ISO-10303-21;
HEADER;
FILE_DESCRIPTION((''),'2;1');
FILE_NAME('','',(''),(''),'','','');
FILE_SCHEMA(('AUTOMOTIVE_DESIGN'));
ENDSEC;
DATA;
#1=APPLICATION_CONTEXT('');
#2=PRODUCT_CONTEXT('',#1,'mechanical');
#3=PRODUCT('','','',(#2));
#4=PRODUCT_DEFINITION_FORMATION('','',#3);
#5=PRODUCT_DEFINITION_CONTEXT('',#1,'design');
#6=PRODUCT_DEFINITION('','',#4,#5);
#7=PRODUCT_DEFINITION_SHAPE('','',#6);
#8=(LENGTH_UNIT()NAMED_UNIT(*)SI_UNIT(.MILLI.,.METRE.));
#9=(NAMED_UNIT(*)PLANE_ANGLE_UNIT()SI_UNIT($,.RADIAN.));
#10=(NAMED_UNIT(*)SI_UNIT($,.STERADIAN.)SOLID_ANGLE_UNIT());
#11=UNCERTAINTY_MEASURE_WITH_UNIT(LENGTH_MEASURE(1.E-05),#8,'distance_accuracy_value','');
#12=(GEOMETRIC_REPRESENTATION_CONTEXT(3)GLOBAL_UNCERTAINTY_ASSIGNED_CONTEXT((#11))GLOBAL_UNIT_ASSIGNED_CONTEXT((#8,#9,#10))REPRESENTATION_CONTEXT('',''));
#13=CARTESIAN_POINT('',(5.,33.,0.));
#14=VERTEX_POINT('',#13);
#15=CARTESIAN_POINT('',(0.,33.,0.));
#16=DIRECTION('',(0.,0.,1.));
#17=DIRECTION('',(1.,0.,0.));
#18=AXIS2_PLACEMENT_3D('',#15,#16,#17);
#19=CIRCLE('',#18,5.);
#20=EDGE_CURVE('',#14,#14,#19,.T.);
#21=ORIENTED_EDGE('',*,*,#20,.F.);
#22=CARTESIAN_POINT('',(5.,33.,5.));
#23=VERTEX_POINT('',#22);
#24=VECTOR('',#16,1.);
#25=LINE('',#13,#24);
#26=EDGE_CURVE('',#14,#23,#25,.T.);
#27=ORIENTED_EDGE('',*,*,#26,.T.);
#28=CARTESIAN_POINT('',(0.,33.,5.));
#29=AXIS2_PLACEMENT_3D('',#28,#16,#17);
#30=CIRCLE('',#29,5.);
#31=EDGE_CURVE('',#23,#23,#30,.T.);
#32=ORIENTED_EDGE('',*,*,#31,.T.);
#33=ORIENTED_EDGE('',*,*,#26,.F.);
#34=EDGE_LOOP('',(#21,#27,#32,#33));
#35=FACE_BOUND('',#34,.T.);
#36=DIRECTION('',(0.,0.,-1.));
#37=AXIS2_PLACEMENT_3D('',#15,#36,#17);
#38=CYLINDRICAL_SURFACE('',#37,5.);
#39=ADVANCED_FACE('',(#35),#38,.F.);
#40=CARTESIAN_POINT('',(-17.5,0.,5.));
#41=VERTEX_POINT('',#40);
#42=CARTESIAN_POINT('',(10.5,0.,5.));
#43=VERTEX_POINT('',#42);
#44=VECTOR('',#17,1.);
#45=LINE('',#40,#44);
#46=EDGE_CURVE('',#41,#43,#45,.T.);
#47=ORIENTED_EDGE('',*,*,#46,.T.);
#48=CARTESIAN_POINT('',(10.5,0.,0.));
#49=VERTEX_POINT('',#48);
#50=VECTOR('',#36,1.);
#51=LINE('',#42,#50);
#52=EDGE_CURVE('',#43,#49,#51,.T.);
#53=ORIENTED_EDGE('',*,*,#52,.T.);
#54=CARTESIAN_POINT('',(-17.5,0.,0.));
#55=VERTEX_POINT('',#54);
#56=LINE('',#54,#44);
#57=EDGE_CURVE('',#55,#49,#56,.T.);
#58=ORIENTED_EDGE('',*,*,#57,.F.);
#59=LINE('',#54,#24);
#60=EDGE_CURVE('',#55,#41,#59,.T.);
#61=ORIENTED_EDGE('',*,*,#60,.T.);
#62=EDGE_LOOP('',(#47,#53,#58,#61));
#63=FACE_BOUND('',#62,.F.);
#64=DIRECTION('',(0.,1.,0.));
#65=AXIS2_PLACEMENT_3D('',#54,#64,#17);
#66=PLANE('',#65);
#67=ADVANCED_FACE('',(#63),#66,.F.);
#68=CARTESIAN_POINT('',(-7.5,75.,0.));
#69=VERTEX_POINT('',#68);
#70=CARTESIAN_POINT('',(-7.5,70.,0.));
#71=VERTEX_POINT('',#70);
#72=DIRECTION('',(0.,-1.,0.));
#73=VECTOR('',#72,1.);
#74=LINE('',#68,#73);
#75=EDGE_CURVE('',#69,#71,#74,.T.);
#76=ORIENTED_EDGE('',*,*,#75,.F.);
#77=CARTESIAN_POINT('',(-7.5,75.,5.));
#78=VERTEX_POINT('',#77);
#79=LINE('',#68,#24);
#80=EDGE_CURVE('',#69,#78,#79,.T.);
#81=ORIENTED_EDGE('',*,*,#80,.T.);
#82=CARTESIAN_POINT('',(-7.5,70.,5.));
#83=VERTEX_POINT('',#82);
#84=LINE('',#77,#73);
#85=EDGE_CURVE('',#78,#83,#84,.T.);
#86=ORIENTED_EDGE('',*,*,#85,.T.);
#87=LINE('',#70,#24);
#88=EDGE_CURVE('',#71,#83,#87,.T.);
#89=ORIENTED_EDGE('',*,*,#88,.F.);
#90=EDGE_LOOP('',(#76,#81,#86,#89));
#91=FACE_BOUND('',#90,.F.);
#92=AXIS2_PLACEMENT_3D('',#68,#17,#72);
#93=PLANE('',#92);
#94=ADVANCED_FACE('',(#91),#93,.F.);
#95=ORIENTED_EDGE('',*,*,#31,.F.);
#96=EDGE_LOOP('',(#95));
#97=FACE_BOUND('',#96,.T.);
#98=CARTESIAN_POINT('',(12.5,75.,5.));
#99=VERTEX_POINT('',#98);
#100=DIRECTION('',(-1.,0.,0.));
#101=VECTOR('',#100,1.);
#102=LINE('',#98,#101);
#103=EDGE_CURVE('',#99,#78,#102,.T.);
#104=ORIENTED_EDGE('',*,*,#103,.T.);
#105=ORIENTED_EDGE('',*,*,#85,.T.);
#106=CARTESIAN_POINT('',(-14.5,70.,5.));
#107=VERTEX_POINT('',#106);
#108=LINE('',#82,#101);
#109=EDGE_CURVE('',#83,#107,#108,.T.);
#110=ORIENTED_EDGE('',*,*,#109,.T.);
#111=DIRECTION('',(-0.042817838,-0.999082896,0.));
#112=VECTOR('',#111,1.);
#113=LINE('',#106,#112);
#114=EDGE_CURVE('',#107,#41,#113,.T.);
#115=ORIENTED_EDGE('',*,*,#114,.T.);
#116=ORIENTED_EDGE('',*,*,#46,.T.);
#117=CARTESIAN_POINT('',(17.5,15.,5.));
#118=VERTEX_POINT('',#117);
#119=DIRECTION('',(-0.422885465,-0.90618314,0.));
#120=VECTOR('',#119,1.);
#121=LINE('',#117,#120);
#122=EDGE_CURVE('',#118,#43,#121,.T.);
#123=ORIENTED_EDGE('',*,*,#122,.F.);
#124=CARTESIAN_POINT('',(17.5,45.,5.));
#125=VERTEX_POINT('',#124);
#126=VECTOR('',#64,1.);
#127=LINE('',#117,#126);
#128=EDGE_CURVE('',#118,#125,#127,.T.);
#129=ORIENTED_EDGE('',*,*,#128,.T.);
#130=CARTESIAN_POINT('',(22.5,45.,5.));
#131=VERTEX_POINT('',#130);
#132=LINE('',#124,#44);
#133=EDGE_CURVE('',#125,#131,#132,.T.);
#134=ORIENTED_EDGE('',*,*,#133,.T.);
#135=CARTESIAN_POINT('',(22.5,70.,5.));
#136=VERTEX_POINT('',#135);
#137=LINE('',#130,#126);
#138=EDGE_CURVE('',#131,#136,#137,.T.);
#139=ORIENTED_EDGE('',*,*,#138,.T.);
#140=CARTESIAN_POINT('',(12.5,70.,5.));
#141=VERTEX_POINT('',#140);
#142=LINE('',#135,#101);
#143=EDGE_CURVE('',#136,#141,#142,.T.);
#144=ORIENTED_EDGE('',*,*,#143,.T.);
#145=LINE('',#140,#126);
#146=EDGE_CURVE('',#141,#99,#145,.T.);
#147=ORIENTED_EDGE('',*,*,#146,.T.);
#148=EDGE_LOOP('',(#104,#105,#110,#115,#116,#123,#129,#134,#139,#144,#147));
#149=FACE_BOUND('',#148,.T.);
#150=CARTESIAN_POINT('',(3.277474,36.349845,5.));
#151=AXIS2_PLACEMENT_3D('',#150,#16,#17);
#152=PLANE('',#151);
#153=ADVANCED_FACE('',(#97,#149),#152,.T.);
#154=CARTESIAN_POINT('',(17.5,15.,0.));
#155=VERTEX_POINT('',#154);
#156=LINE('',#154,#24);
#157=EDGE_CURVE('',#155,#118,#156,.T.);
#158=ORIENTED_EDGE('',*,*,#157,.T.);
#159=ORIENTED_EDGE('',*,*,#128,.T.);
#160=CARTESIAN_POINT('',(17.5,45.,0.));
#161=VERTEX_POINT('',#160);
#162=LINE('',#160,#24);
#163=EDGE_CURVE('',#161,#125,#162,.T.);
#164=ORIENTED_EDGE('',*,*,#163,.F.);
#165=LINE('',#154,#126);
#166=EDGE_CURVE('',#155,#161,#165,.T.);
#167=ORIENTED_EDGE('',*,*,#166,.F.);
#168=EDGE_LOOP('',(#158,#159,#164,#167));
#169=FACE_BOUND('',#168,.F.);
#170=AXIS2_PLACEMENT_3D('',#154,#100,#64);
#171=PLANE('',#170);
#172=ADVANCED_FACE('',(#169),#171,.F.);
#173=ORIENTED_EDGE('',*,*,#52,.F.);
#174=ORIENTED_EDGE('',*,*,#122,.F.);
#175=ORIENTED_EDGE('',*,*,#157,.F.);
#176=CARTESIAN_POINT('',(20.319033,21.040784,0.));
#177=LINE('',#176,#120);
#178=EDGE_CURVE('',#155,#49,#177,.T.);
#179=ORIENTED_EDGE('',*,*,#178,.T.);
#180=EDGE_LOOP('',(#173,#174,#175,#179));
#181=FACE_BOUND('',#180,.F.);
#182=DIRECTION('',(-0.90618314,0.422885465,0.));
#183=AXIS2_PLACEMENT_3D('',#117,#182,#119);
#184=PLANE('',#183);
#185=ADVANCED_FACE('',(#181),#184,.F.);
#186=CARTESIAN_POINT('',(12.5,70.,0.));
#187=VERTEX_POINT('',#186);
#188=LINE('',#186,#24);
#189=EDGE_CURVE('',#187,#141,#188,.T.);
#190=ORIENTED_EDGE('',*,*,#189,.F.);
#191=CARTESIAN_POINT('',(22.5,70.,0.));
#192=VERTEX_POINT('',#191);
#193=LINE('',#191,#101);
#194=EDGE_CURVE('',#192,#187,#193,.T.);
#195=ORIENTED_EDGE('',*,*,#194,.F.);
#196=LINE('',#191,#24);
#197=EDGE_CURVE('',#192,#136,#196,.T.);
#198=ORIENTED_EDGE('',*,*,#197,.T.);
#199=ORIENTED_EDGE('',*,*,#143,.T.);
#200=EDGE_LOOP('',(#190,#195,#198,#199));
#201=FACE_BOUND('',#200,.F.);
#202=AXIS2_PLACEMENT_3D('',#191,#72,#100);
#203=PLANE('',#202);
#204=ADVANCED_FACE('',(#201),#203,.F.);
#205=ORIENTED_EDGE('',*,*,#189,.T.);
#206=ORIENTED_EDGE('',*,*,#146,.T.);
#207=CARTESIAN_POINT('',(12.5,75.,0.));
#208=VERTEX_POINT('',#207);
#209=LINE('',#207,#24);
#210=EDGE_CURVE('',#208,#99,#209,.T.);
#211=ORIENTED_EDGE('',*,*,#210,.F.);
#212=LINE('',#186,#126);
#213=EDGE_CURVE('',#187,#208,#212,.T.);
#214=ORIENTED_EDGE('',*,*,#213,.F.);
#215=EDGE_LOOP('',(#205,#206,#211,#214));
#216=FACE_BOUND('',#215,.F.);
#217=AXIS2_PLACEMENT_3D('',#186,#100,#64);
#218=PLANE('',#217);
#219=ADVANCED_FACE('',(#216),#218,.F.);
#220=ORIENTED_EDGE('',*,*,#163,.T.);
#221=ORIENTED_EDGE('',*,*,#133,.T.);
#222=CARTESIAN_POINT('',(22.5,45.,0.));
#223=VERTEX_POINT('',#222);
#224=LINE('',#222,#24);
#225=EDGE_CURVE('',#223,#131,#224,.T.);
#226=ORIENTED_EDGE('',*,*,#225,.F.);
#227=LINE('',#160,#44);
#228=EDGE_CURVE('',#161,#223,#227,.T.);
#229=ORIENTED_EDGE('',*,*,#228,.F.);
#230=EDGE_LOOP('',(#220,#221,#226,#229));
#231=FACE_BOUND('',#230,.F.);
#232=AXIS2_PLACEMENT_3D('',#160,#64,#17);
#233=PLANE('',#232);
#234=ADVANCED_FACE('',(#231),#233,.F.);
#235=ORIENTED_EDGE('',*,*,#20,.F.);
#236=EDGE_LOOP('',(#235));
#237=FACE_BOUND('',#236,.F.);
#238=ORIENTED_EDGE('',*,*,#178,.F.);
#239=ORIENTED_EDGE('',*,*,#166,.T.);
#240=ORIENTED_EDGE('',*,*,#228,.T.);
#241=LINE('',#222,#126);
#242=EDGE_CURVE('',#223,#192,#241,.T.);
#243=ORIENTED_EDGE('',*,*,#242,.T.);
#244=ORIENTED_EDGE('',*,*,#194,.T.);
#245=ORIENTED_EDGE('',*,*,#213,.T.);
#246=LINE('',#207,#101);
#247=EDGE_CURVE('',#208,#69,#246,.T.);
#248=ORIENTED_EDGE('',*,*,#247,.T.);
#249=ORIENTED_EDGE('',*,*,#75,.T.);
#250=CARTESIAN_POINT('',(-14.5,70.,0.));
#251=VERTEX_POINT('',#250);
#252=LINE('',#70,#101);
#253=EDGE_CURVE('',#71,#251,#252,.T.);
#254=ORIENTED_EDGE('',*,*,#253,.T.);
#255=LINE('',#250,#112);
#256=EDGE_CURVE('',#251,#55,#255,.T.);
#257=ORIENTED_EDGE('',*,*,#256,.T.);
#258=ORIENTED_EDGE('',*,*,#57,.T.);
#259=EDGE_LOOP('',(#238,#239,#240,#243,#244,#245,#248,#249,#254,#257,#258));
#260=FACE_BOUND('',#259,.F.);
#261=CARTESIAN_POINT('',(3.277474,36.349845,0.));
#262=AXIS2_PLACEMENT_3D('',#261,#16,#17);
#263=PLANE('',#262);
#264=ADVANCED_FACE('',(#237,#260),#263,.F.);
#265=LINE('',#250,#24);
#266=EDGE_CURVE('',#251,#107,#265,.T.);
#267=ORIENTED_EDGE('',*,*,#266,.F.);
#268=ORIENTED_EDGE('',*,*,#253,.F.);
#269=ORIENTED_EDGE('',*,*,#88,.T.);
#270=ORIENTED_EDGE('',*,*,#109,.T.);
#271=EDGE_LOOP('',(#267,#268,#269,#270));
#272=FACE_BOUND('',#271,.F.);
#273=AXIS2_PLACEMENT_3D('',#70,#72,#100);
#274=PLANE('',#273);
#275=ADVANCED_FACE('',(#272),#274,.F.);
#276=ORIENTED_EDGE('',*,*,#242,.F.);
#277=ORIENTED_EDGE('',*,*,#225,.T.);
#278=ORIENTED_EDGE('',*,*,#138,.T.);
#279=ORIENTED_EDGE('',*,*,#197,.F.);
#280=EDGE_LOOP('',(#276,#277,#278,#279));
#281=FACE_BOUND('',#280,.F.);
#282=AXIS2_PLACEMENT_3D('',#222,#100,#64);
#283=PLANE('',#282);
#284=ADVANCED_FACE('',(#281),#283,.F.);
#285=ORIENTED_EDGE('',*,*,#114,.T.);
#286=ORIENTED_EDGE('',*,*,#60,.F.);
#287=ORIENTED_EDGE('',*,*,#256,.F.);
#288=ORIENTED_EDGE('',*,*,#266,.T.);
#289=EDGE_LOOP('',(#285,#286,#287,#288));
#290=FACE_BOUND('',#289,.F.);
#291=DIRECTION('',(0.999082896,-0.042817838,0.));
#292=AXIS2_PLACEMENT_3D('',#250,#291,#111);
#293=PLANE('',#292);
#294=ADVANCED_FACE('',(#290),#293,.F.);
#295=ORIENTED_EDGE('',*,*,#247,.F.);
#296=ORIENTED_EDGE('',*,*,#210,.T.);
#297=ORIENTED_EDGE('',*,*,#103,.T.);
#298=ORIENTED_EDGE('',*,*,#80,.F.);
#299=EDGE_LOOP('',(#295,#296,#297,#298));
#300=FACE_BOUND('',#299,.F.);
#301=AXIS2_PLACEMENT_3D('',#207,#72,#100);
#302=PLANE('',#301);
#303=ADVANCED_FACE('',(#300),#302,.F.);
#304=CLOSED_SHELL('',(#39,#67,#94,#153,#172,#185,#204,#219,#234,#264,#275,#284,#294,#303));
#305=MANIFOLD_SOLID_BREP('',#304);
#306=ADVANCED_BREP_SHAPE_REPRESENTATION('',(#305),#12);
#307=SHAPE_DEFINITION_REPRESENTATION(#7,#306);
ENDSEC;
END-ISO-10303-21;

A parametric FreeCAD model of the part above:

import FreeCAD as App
import Part
import Sketcher
from FreeCAD import Vector

doc = App.newDocument("Part")
body = doc.addObject("PartDesign::Body", "Body")

# Sketch on XY plane
sketch1 = doc.addObject("Sketcher::SketchObject", "Sketch")
body.addObject(sketch1)
sketch1.AttachmentSupport = (doc.XY_Plane, [""])
sketch1.MapMode = "FlatFace"
sketch1.addGeometry([
    Part.LineSegment(Vector(-7.5, 70, 0), Vector(-14.5, 70, 0)),  # 0
    Part.LineSegment(Vector(-14.5, 70, 0), Vector(-17.5, 0, 0)),  # 1
    Part.LineSegment(Vector(-17.5, 0, 0), Vector(22.5, 0, 0)),  # 2
    Part.LineSegment(Vector(22.5, 0, 0), Vector(22.5, 15, 0)),  # 3
    Part.LineSegment(Vector(22.5, 15, 0), Vector(17.5, 15, 0)),  # 4
    Part.LineSegment(Vector(17.5, 15, 0), Vector(17.5, 45, 0)),  # 5
    Part.LineSegment(Vector(17.5, 45, 0), Vector(22.5, 45, 0)),  # 6
    Part.LineSegment(Vector(22.5, 45, 0), Vector(22.5, 70, 0)),  # 7
    Part.LineSegment(Vector(22.5, 70, 0), Vector(12.5, 70, 0)),  # 8
    Part.LineSegment(Vector(12.5, 70, 0), Vector(12.5, 75, 0)),  # 9
    Part.LineSegment(Vector(12.5, 75, 0), Vector(-7.5, 75, 0)),  # 10
    Part.LineSegment(Vector(-7.5, 75, 0), Vector(-7.5, 70, 0)),  # 11
    Part.Circle(Vector(0, 33, 0), Vector(0, 0, 1), 5),  # 12
], False)
sketch1.addConstraint([
    Sketcher.Constraint("Coincident", 0, 2, 1, 1),
    Sketcher.Constraint("Coincident", 1, 2, 2, 1),
    Sketcher.Constraint("Coincident", 2, 2, 3, 1),
    Sketcher.Constraint("Coincident", 3, 2, 4, 1),
    Sketcher.Constraint("Coincident", 4, 2, 5, 1),
    Sketcher.Constraint("Coincident", 5, 2, 6, 1),
    Sketcher.Constraint("Coincident", 6, 2, 7, 1),
    Sketcher.Constraint("Coincident", 7, 2, 8, 1),
    Sketcher.Constraint("Coincident", 8, 2, 9, 1),
    Sketcher.Constraint("Coincident", 9, 2, 10, 1),
    Sketcher.Constraint("Coincident", 10, 2, 11, 1),
    Sketcher.Constraint("Coincident", 11, 2, 0, 1),
    Sketcher.Constraint("Horizontal", 0),
    Sketcher.Constraint("Horizontal", 2),
    Sketcher.Constraint("Vertical", 3),
    Sketcher.Constraint("Horizontal", 4),
    Sketcher.Constraint("Vertical", 5),
    Sketcher.Constraint("Horizontal", 6),
    Sketcher.Constraint("Vertical", 7),
    Sketcher.Constraint("Horizontal", 8),
    Sketcher.Constraint("Vertical", 9),
    Sketcher.Constraint("Horizontal", 10),
    Sketcher.Constraint("Vertical", 11),
    Sketcher.Constraint("PointOnObject", 12, 3, -2),
    Sketcher.Constraint("PointOnObject", 1, 2, -1),
    Sketcher.Constraint("Horizontal", 0, 2, 7, 2),
    Sketcher.Constraint("Vertical", 3, 2, 6, 2),
    Sketcher.Constraint("Equal", 6, 9),
    Sketcher.Constraint("Diameter", 12, 10.0),
    Sketcher.Constraint("DistanceX", 0, 2, 0, 1, 7.0),
    Sketcher.Constraint("DistanceX", 2, 1, 2, 2, 40.0),
    Sketcher.Constraint("DistanceX", 4, 2, 4, 1, 5.0),
    Sketcher.Constraint("DistanceX", 8, 2, 8, 1, 10.0),
    Sketcher.Constraint("DistanceX", 10, 2, 10, 1, 20.0),
    Sketcher.Constraint("DistanceY", 3, 1, 3, 2, 15.0),
    Sketcher.Constraint("DistanceY", 5, 1, 5, 2, 30.0),
    Sketcher.Constraint("DistanceY", 7, 1, 7, 2, 25.0),
    Sketcher.Constraint("DistanceY", -1, 1, 12, 3, 33.0),
    Sketcher.Constraint("DistanceX", 0, 2, -1, 1, 14.5),
])
pad1 = doc.addObject("PartDesign::Pad", "Pad")
body.addObject(pad1)
pad1.Profile = sketch1
pad1.Length = 5

# Sketch on XY plane
sketch2 = doc.addObject("Sketcher::SketchObject", "Sketch001")
body.addObject(sketch2)
sketch2.AttachmentSupport = (doc.XY_Plane, [""])
sketch2.MapMode = "FlatFace"
sketch2.AttachmentOffset = App.Placement(Vector(0, 0, 5), App.Rotation())
sketch2.addGeometry([
    Part.LineSegment(Vector(17.5, 15, 0), Vector(10.5, 0, 0)),
    Part.LineSegment(Vector(10.5, 0, 0), Vector(22.5, 0, 0)),
    Part.LineSegment(Vector(22.5, 0, 0), Vector(22.5, 15, 0)),
    Part.LineSegment(Vector(22.5, 15, 0), Vector(17.5, 15, 0)),
], False)
sketch2.addConstraint([
    Sketcher.Constraint("Coincident", 0, 2, 1, 1),
    Sketcher.Constraint("Coincident", 1, 2, 2, 1),
    Sketcher.Constraint("Coincident", 2, 2, 3, 1),
    Sketcher.Constraint("Coincident", 3, 2, 0, 1),
    Sketcher.Constraint("Horizontal", 1),
    Sketcher.Constraint("Vertical", 2),
    Sketcher.Constraint("Horizontal", 3),
    Sketcher.Constraint("PointOnObject", 0, 2, -1),
    Sketcher.Constraint("DistanceX", 1, 1, 1, 2, 12.0),
    Sketcher.Constraint("DistanceX", 3, 2, 3, 1, 5.0),
    Sketcher.Constraint("DistanceY", 2, 1, 2, 2, 15.0),
    Sketcher.Constraint("DistanceX", -1, 1, 0, 2, 10.5),
])
pocket1 = doc.addObject("PartDesign::Pocket", "Pocket")
body.addObject(pocket1)
pocket1.Profile = sketch2
pocket1.Length = 25

doc.recompute()
